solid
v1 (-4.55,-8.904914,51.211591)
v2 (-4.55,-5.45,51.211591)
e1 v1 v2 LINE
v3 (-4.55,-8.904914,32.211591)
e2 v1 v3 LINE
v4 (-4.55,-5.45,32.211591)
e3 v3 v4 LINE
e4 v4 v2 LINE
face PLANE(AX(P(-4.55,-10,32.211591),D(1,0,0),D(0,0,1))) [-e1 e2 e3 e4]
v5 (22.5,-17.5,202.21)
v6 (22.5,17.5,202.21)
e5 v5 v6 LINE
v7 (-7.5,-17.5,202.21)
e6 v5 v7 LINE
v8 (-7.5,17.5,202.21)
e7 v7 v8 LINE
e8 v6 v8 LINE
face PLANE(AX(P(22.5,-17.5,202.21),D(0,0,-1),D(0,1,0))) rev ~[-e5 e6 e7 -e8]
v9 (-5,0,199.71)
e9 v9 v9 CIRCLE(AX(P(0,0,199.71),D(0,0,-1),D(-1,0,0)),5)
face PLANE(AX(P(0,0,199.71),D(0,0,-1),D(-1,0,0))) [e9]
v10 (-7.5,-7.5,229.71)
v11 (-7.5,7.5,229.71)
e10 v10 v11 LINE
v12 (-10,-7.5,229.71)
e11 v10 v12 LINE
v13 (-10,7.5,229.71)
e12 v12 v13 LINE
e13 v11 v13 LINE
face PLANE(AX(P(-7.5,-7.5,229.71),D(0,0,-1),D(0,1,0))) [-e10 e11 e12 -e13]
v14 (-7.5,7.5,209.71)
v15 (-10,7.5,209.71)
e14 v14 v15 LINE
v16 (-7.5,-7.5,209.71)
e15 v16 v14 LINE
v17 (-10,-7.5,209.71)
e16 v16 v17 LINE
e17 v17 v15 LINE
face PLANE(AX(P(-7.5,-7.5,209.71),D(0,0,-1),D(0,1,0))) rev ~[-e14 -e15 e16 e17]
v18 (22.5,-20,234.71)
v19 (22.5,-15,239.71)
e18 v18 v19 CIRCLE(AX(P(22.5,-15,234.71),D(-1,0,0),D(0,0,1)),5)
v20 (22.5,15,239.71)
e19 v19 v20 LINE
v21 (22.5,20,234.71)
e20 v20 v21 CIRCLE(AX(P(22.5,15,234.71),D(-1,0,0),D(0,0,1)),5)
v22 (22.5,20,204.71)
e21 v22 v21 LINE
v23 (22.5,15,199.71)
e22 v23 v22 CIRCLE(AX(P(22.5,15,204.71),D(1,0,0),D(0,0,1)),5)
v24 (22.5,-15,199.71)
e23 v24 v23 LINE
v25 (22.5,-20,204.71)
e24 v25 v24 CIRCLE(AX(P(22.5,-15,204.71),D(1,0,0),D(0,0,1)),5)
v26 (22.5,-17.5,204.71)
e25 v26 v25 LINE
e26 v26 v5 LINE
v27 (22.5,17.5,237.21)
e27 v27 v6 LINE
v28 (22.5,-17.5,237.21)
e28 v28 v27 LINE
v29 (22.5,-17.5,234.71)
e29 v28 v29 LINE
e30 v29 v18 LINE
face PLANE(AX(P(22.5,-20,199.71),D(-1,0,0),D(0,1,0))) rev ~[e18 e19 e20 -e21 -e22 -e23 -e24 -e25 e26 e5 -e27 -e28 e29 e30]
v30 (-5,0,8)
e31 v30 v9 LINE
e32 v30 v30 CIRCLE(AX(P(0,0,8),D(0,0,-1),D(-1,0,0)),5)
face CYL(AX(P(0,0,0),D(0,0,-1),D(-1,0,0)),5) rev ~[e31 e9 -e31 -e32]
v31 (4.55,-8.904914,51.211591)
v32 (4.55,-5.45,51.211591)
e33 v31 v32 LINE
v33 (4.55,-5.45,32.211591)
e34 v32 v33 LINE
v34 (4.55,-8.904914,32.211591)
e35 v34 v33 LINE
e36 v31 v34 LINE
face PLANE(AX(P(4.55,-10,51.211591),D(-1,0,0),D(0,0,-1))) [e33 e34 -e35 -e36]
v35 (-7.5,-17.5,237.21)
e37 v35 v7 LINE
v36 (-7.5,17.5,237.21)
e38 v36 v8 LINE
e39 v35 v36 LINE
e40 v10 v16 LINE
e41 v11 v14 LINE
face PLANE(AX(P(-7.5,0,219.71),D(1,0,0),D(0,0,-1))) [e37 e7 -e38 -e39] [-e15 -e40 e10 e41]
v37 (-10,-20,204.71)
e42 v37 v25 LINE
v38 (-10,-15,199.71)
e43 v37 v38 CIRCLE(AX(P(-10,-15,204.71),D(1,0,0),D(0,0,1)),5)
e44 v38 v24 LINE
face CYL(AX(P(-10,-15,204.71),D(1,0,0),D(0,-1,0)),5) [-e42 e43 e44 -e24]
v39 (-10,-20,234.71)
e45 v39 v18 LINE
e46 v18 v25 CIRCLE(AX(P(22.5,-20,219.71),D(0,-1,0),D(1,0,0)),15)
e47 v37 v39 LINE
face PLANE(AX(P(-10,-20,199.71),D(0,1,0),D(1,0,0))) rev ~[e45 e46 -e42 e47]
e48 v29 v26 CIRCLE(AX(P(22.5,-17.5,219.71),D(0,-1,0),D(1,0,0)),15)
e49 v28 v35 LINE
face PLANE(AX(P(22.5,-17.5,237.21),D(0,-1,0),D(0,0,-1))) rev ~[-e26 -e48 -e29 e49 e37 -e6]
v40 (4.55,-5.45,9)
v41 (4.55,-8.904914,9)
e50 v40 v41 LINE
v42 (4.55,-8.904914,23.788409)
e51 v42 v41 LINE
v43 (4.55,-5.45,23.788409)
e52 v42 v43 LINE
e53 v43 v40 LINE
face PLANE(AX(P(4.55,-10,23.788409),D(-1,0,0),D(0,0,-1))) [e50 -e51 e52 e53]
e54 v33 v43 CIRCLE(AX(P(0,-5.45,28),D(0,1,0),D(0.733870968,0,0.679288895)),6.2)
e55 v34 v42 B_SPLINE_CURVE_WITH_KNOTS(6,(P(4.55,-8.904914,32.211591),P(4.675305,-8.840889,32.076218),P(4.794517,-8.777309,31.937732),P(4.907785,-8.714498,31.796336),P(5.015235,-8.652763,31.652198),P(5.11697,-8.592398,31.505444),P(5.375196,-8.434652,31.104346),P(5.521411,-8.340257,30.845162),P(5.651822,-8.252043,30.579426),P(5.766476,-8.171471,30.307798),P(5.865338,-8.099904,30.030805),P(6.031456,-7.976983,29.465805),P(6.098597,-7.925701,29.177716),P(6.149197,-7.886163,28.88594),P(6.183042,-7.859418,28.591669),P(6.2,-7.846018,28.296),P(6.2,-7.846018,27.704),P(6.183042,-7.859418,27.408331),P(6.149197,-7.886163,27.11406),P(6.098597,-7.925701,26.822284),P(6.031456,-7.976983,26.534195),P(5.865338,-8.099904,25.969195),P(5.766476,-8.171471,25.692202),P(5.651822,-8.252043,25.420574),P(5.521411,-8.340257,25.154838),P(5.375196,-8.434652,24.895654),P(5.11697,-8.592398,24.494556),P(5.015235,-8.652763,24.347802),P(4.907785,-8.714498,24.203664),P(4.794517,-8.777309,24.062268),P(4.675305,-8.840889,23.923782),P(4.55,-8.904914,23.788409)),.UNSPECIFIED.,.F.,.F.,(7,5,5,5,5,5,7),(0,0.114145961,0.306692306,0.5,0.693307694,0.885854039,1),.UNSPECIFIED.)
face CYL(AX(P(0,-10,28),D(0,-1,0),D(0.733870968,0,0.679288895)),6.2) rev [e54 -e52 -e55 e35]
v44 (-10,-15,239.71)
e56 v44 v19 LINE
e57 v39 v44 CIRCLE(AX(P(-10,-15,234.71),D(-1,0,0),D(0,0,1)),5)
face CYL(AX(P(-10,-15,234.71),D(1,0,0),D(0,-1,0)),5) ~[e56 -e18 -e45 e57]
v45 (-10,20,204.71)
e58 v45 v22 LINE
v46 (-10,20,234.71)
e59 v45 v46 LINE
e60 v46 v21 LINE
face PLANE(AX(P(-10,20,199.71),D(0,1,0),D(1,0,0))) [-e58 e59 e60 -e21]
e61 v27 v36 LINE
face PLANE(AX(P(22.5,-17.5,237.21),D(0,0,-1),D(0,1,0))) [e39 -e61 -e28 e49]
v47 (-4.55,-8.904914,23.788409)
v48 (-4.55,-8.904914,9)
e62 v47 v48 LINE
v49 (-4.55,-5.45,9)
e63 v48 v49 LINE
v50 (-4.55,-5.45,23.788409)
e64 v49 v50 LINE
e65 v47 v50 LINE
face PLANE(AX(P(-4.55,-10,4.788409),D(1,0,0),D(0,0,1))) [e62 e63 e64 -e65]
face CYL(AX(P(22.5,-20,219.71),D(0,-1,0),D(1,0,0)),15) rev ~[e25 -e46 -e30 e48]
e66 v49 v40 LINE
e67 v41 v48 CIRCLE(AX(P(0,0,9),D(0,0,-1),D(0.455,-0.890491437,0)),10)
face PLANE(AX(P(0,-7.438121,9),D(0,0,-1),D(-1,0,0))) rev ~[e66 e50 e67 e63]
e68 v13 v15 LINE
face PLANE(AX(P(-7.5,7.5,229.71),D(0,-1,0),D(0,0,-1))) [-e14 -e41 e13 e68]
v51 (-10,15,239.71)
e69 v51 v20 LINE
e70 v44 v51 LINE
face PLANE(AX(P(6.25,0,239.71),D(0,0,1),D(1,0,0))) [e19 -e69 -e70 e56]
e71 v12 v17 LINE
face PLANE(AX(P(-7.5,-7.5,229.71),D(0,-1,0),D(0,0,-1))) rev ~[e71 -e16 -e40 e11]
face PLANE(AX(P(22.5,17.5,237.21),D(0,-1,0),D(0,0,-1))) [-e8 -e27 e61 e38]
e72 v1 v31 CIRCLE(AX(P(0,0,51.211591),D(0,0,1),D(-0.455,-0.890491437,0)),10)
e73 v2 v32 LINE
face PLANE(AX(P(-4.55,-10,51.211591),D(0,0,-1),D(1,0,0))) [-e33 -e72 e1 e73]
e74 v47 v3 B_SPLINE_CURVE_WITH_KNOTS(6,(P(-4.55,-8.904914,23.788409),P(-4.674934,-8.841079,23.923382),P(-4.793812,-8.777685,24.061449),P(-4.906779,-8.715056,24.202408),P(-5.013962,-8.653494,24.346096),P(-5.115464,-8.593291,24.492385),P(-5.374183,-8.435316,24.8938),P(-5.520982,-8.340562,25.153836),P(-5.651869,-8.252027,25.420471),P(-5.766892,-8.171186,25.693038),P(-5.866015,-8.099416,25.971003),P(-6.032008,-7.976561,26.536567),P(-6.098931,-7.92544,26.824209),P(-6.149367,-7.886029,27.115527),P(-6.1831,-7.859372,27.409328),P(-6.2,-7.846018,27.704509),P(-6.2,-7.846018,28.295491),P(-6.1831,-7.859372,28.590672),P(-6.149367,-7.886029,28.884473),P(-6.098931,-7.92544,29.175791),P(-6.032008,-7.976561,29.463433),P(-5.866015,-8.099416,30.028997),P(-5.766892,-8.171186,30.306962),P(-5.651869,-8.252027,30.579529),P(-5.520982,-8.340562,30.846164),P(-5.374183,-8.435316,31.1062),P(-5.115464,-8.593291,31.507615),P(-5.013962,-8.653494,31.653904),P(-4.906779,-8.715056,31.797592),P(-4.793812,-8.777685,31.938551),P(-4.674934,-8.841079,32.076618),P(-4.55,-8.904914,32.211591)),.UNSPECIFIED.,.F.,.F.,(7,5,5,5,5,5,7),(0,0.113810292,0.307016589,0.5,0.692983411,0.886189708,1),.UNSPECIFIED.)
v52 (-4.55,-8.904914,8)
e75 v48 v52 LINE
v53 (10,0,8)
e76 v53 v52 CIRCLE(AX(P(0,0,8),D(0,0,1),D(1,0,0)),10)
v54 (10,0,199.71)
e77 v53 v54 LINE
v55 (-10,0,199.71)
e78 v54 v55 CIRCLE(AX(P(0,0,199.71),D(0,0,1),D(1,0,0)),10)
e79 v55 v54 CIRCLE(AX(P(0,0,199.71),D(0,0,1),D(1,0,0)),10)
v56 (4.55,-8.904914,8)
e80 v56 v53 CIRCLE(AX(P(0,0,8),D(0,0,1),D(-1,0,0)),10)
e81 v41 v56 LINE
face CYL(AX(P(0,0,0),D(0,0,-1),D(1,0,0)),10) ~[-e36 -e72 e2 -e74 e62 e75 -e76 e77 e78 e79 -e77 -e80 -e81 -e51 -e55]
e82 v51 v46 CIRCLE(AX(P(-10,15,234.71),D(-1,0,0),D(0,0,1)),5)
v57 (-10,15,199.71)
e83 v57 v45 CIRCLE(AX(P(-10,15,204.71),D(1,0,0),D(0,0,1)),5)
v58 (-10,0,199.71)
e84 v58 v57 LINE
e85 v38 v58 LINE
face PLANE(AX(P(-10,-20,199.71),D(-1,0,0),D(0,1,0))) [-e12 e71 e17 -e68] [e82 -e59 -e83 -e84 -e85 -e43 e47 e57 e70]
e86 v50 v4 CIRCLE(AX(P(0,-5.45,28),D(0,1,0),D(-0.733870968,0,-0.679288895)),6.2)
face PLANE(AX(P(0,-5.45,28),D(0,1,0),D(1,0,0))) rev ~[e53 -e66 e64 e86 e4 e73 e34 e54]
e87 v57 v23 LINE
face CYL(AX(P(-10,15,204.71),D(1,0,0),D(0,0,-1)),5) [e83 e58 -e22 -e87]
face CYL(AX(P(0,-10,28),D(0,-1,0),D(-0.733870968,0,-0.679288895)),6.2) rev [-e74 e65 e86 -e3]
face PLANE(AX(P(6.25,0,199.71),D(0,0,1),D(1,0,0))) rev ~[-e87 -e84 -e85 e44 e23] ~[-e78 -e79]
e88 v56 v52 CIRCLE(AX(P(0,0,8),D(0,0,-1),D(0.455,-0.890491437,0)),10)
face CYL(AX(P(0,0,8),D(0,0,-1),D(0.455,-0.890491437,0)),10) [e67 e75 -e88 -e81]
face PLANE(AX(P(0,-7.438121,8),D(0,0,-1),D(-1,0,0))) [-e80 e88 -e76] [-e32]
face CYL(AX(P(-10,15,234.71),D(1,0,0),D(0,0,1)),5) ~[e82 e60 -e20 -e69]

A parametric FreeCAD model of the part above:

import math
import FreeCAD as App
import Part
import Sketcher

V = App.Vector


def edges_at(feature, points):
    """Names of the edges that pass closest to the given points."""
    edges = feature.Shape.Edges
    near = lambda p: min(range(len(edges)), key=lambda i: edges[i].distToShape(Part.Vertex(*p))[0])
    return sorted({f"Edge{near(p) + 1}" for p in points})

doc = App.newDocument("Part")
body = doc.addObject("PartDesign::Body", "Body")

# Sketch on XY plane
sketch1 = doc.addObject("Sketcher::SketchObject", "Sketch")
body.addObject(sketch1)
sketch1.AttachmentSupport = (doc.XY_Plane, [""])
sketch1.MapMode = "FlatFace"
sketch1.addGeometry(Part.Circle(V(0, 0, 0), V(0, 0, 1), 10), False)
sketch1.addConstraint(Sketcher.Constraint("Coincident", 0, 3, -1, 1))
sketch1.addConstraint(Sketcher.Constraint("Diameter", 0, 20.0))
pad1 = doc.addObject("PartDesign::Pad", "Pad")
body.addObject(pad1)
pad1.Profile = sketch1
pad1.Length = 199.71

# Sketch on XZ plane
sketch2 = doc.addObject("Sketcher::SketchObject", "Sketch001")
body.addObject(sketch2)
sketch2.AttachmentSupport = (doc.XZ_Plane, [""])
sketch2.MapMode = "FlatFace"
sketch2.AttachmentOffset = App.Placement(V(0, 0, 10), App.Rotation())
sketch2.addGeometry(Part.LineSegment(V(4.55, 4.788409, 0), V(4.55, 23.788409, 0)), False)
sketch2.addGeometry(Part.ArcOfCircle(Part.Circle(V(0, 28, 0), V(0, 0, 1), 6.2), math.radians(-42.7881), math.radians(42.7881)), False)
sketch2.addGeometry(Part.LineSegment(V(4.55, 32.211591, 0), V(4.55, 51.211591, 0)), False)
sketch2.addGeometry(Part.LineSegment(V(4.55, 51.211591, 0), V(-4.55, 51.211591, 0)), False)
sketch2.addGeometry(Part.LineSegment(V(-4.55, 51.211591, 0), V(-4.55, 32.211591, 0)), False)
sketch2.addGeometry(Part.ArcOfCircle(Part.Circle(V(0, 28, 0), V(0, 0, 1), 6.2), math.radians(137.2119), math.radians(222.7881)), False)
sketch2.addGeometry(Part.LineSegment(V(-4.55, 23.788409, 0), V(-4.55, 4.788409, 0)), False)
sketch2.addGeometry(Part.LineSegment(V(-4.55, 4.788409, 0), V(4.55, 4.788409, 0)), False)
sketch2.addConstraint(Sketcher.Constraint("Coincident", 0, 2, 1, 1))
sketch2.addConstraint(Sketcher.Constraint("Coincident", 1, 2, 2, 1))
sketch2.addConstraint(Sketcher.Constraint("Coincident", 2, 2, 3, 1))
sketch2.addConstraint(Sketcher.Constraint("Coincident", 3, 2, 4, 1))
sketch2.addConstraint(Sketcher.Constraint("Coincident", 4, 2, 5, 1))
sketch2.addConstraint(Sketcher.Constraint("Coincident", 5, 2, 6, 1))
sketch2.addConstraint(Sketcher.Constraint("Coincident", 6, 2, 7, 1))
sketch2.addConstraint(Sketcher.Constraint("Coincident", 7, 2, 0, 1))
sketch2.addConstraint(Sketcher.Constraint("Vertical", 0))
sketch2.addConstraint(Sketcher.Constraint("Vertical", 2))
sketch2.addConstraint(Sketcher.Constraint("Horizontal", 3))
sketch2.addConstraint(Sketcher.Constraint("Vertical", 4))
sketch2.addConstraint(Sketcher.Constraint("Vertical", 6))
sketch2.addConstraint(Sketcher.Constraint("Horizontal", 7))
sketch2.addConstraint(Sketcher.Constraint("Coincident", 5, 3, 1, 3))
sketch2.addConstraint(Sketcher.Constraint("Equal", 1, 5))
sketch2.addConstraint(Sketcher.Constraint("Symmetric", 1, 2, 4, 2, -2))
sketch2.addConstraint(Sketcher.Constraint("Horizontal", 0, 2, 5, 2))
sketch2.addConstraint(Sketcher.Constraint("Vertical", 0, 2, 1, 2))
sketch2.addConstraint(Sketcher.Constraint("Equal", 0, 2))
sketch2.addConstraint(Sketcher.Constraint("Radius", 1, 6.2))
sketch2.addConstraint(Sketcher.Constraint("DistanceY", 0, 1, 0, 2, 19.0))
sketch2.addConstraint(Sketcher.Constraint("DistanceX", 3, 2, 3, 1, 9.1))
sketch2.addConstraint(Sketcher.Constraint("DistanceY", -1, 1, 1, 3, 28.0))
pocket1 = doc.addObject("PartDesign::Pocket", "Pocket")
body.addObject(pocket1)
pocket1.Profile = sketch2
pocket1.Length = 4.55

# Sketch on XY plane
sketch3 = doc.addObject("Sketcher::SketchObject", "Sketch002")
body.addObject(sketch3)
sketch3.AttachmentSupport = (doc.XY_Plane, [""])
sketch3.MapMode = "FlatFace"
sketch3.AttachmentOffset = App.Placement(V(0, 0, 199.71), App.Rotation())
sketch3.addGeometry(Part.LineSegment(V(-10, 20, 0), V(-10, -20, 0)), False)
sketch3.addGeometry(Part.LineSegment(V(-10, -20, 0), V(22.5, -20, 0)), False)
sketch3.addGeometry(Part.LineSegment(V(22.5, -20, 0), V(22.5, 20, 0)), False)
sketch3.addGeometry(Part.LineSegment(V(22.5, 20, 0), V(-10, 20, 0)), False)
sketch3.addConstraint(Sketcher.Constraint("Coincident", 0, 2, 1, 1))
sketch3.addConstraint(Sketcher.Constraint("Coincident", 1, 2, 2, 1))
sketch3.addConstraint(Sketcher.Constraint("Coincident", 2, 2, 3, 1))
sketch3.addConstraint(Sketcher.Constraint("Coincident", 3, 2, 0, 1))
sketch3.addConstraint(Sketcher.Constraint("Vertical", 0))
sketch3.addConstraint(Sketcher.Constraint("Horizontal", 1))
sketch3.addConstraint(Sketcher.Constraint("Vertical", 2))
sketch3.addConstraint(Sketcher.Constraint("Horizontal", 3))
sketch3.addConstraint(Sketcher.Constraint("DistanceY", 0, 2, 0, 1, 40.0))
sketch3.addConstraint(Sketcher.Constraint("DistanceX", 1, 1, 1, 2, 32.5))
sketch3.addConstraint(Sketcher.Constraint("DistanceX", 0, 2, -1, 1, 10.0))
sketch3.addConstraint(Sketcher.Constraint("DistanceY", 0, 2, -1, 1, 20.0))
pad2 = doc.addObject("PartDesign::Pad", "Pad001")
body.addObject(pad2)
pad2.Profile = sketch3
pad2.Length = 40

# Sketch on YZ plane
sketch4 = doc.addObject("Sketcher::SketchObject", "Sketch003")
body.addObject(sketch4)
sketch4.AttachmentSupport = (doc.YZ_Plane, [""])
sketch4.MapMode = "FlatFace"
sketch4.AttachmentOffset = App.Placement(V(0, 0, 22.5), App.Rotation())
sketch4.addGeometry(Part.LineSegment(V(17.5, 237.21, 0), V(-17.5, 237.21, 0)), False)
sketch4.addGeometry(Part.LineSegment(V(-17.5, 237.21, 0), V(-17.5, 202.21, 0)), False)
sketch4.addGeometry(Part.LineSegment(V(-17.5, 202.21, 0), V(17.5, 202.21, 0)), False)
sketch4.addGeometry(Part.LineSegment(V(17.5, 202.21, 0), V(17.5, 237.21, 0)), False)
sketch4.addConstraint(Sketcher.Constraint("Coincident", 0, 2, 1, 1))
sketch4.addConstraint(Sketcher.Constraint("Coincident", 1, 2, 2, 1))
sketch4.addConstraint(Sketcher.Constraint("Coincident", 2, 2, 3, 1))
sketch4.addConstraint(Sketcher.Constraint("Coincident", 3, 2, 0, 1))
sketch4.addConstraint(Sketcher.Constraint("Horizontal", 0))
sketch4.addConstraint(Sketcher.Constraint("Vertical", 1))
sketch4.addConstraint(Sketcher.Constraint("Horizontal", 2))
sketch4.addConstraint(Sketcher.Constraint("Vertical", 3))
sketch4.addConstraint(Sketcher.Constraint("Equal", 2, 1))
sketch4.addConstraint(Sketcher.Constraint("DistanceX", 0, 2, 0, 1, 35.0))
sketch4.addConstraint(Sketcher.Constraint("DistanceX", 0, 2, -1, 1, 17.5))
sketch4.addConstraint(Sketcher.Constraint("DistanceY", -1, 1, 0, 2, 237.21))
pocket2 = doc.addObject("PartDesign::Pocket", "Pocket001")
body.addObject(pocket2)
pocket2.Profile = sketch4
pocket2.Length = 30

# Sketch on YZ plane
sketch5 = doc.addObject("Sketcher::SketchObject", "Sketch004")
body.addObject(sketch5)
sketch5.AttachmentSupport = (doc.YZ_Plane, [""])
sketch5.MapMode = "FlatFace"
sketch5.AttachmentOffset = App.Placement(V(0, 0, -7.5), App.Rotation())
sketch5.addGeometry(Part.LineSegment(V(7.5, 229.71, 0), V(-7.5, 229.71, 0)), False)
sketch5.addGeometry(Part.LineSegment(V(-7.5, 229.71, 0), V(-7.5, 209.71, 0)), False)
sketch5.addGeometry(Part.LineSegment(V(-7.5, 209.71, 0), V(7.5, 209.71, 0)), False)
sketch5.addGeometry(Part.LineSegment(V(7.5, 209.71, 0), V(7.5, 229.71, 0)), False)
sketch5.addConstraint(Sketcher.Constraint("Coincident", 0, 2, 1, 1))
sketch5.addConstraint(Sketcher.Constraint("Coincident", 1, 2, 2, 1))
sketch5.addConstraint(Sketcher.Constraint("Coincident", 2, 2, 3, 1))
sketch5.addConstraint(Sketcher.Constraint("Coincident", 3, 2, 0, 1))
sketch5.addConstraint(Sketcher.Constraint("Horizontal", 0))
sketch5.addConstraint(Sketcher.Constraint("Vertical", 1))
sketch5.addConstraint(Sketcher.Constraint("Horizontal", 2))
sketch5.addConstraint(Sketcher.Constraint("Vertical", 3))
sketch5.addConstraint(Sketcher.Constraint("DistanceX", 0, 2, 0, 1, 15.0))
sketch5.addConstraint(Sketcher.Constraint("DistanceY", 1, 2, 1, 1, 20.0))
sketch5.addConstraint(Sketcher.Constraint("DistanceX", 0, 2, -1, 1, 7.5))
sketch5.addConstraint(Sketcher.Constraint("DistanceY", -1, 1, 0, 2, 229.71))
pocket3 = doc.addObject("PartDesign::Pocket", "Pocket002")
body.addObject(pocket3)
pocket3.Profile = sketch5
pocket3.Length = 2.5
doc.recompute()

fillet = doc.addObject("PartDesign::Fillet", "Fillet")
body.addObject(fillet)
fillet.Base = (pocket3, edges_at(pocket3, [
    (6.25, 20, 199.71),
    (6.25, -20, 199.71),
    (6.25, 20, 239.71),
    (6.25, -20, 239.71),
]))
fillet.Radius = 5

# Sketch on XY plane
sketch6 = doc.addObject("Sketcher::SketchObject", "Sketch005")
body.addObject(sketch6)
sketch6.AttachmentSupport = (doc.XY_Plane, [""])
sketch6.MapMode = "FlatFace"
sketch6.addGeometry(Part.Circle(V(0, 0, 0), V(0, 0, 1), 5), False)
sketch6.addConstraint(Sketcher.Constraint("Coincident", 0, 3, -1, 1))
sketch6.addConstraint(Sketcher.Constraint("Diameter", 0, 10.0))
pocket4 = doc.addObject("PartDesign::Pocket", "Pocket003")
body.addObject(pocket4)
pocket4.Profile = sketch6
pocket4.Length = 199.71
pocket4.Reversed = True

# Sketch on XY plane
sketch7 = doc.addObject("Sketcher::SketchObject", "Sketch006")
body.addObject(sketch7)
sketch7.AttachmentSupport = (doc.XY_Plane, [""])
sketch7.MapMode = "FlatFace"
sketch7.addGeometry(Part.Circle(V(0, 0, 0), V(0, 0, 1), 10), False)
sketch7.addConstraint(Sketcher.Constraint("Coincident", 0, 3, -1, 1))
sketch7.addConstraint(Sketcher.Constraint("Diameter", 0, 20.0))
pocket5 = doc.addObject("PartDesign::Pocket", "Pocket004")
body.addObject(pocket5)
pocket5.Profile = sketch7
pocket5.Length = 8
pocket5.Reversed = True

# Sketch on XY plane
sketch8 = doc.addObject("Sketcher::SketchObject", "Sketch007")
body.addObject(sketch8)
sketch8.AttachmentSupport = (doc.XY_Plane, [""])
sketch8.MapMode = "FlatFace"
sketch8.AttachmentOffset = App.Placement(V(0, 0, 8), App.Rotation())
sketch8.addGeometry(Part.LineSegment(V(-4.55, -8.904914, 0), V(-4.55, -5.45, 0)), False)
sketch8.addGeometry(Part.LineSegment(V(-4.55, -5.45, 0), V(4.55, -5.45, 0)), False)
sketch8.addGeometry(Part.LineSegment(V(4.55, -5.45, 0), V(4.55, -8.904914, 0)), False)
sketch8.addGeometry(Part.ArcOfCircle(Part.Circle(V(0, 0, 0), V(0, 0, 1), 10), math.radians(-117.064934), math.radians(-62.935066)), False)
sketch8.addConstraint(Sketcher.Constraint("Coincident", 0, 2, 1, 1))
sketch8.addConstraint(Sketcher.Constraint("Coincident", 1, 2, 2, 1))
sketch8.addConstraint(Sketcher.Constraint("Coincident", 2, 2, 3, 2))
sketch8.addConstraint(Sketcher.Constraint("Coincident", 3, 1, 0, 1))
sketch8.addConstraint(Sketcher.Constraint("Vertical", 0))
sketch8.addConstraint(Sketcher.Constraint("Horizontal", 1))
sketch8.addConstraint(Sketcher.Constraint("Vertical", 2))
sketch8.addConstraint(Sketcher.Constraint("Coincident", 3, 3, -1, 1))
sketch8.addConstraint(Sketcher.Constraint("Horizontal", 2, 2, 3, 1))
sketch8.addConstraint(Sketcher.Constraint("Radius", 3, 10.0))
sketch8.addConstraint(Sketcher.Constraint("DistanceX", 1, 1, 1, 2, 9.1))
sketch8.addConstraint(Sketcher.Constraint("DistanceY", 0, 2, -1, 1, 5.45))
pad3 = doc.addObject("PartDesign::Pad", "Pad002")
body.addObject(pad3)
pad3.Profile = sketch8
pad3.Length = 1

# Sketch on XZ plane
sketch9 = doc.addObject("Sketcher::SketchObject", "Sketch008")
body.addObject(sketch9)
sketch9.AttachmentSupport = (doc.XZ_Plane, [""])
sketch9.MapMode = "FlatFace"
sketch9.AttachmentOffset = App.Placement(V(0, 0, 20), App.Rotation())
sketch9.addGeometry(Part.Circle(V(22.5, 219.71, 0), V(0, 0, 1), 15), False)
sketch9.addConstraint(Sketcher.Constraint("Diameter", 0, 30.0))
sketch9.addConstraint(Sketcher.Constraint("DistanceX", -1, 1, 0, 3, 22.5))
sketch9.addConstraint(Sketcher.Constraint("DistanceY", -1, 1, 0, 3, 219.71))
pocket6 = doc.addObject("PartDesign::Pocket", "Pocket005")
body.addObject(pocket6)
pocket6.Profile = sketch9
pocket6.Length = 10

doc.recompute()
